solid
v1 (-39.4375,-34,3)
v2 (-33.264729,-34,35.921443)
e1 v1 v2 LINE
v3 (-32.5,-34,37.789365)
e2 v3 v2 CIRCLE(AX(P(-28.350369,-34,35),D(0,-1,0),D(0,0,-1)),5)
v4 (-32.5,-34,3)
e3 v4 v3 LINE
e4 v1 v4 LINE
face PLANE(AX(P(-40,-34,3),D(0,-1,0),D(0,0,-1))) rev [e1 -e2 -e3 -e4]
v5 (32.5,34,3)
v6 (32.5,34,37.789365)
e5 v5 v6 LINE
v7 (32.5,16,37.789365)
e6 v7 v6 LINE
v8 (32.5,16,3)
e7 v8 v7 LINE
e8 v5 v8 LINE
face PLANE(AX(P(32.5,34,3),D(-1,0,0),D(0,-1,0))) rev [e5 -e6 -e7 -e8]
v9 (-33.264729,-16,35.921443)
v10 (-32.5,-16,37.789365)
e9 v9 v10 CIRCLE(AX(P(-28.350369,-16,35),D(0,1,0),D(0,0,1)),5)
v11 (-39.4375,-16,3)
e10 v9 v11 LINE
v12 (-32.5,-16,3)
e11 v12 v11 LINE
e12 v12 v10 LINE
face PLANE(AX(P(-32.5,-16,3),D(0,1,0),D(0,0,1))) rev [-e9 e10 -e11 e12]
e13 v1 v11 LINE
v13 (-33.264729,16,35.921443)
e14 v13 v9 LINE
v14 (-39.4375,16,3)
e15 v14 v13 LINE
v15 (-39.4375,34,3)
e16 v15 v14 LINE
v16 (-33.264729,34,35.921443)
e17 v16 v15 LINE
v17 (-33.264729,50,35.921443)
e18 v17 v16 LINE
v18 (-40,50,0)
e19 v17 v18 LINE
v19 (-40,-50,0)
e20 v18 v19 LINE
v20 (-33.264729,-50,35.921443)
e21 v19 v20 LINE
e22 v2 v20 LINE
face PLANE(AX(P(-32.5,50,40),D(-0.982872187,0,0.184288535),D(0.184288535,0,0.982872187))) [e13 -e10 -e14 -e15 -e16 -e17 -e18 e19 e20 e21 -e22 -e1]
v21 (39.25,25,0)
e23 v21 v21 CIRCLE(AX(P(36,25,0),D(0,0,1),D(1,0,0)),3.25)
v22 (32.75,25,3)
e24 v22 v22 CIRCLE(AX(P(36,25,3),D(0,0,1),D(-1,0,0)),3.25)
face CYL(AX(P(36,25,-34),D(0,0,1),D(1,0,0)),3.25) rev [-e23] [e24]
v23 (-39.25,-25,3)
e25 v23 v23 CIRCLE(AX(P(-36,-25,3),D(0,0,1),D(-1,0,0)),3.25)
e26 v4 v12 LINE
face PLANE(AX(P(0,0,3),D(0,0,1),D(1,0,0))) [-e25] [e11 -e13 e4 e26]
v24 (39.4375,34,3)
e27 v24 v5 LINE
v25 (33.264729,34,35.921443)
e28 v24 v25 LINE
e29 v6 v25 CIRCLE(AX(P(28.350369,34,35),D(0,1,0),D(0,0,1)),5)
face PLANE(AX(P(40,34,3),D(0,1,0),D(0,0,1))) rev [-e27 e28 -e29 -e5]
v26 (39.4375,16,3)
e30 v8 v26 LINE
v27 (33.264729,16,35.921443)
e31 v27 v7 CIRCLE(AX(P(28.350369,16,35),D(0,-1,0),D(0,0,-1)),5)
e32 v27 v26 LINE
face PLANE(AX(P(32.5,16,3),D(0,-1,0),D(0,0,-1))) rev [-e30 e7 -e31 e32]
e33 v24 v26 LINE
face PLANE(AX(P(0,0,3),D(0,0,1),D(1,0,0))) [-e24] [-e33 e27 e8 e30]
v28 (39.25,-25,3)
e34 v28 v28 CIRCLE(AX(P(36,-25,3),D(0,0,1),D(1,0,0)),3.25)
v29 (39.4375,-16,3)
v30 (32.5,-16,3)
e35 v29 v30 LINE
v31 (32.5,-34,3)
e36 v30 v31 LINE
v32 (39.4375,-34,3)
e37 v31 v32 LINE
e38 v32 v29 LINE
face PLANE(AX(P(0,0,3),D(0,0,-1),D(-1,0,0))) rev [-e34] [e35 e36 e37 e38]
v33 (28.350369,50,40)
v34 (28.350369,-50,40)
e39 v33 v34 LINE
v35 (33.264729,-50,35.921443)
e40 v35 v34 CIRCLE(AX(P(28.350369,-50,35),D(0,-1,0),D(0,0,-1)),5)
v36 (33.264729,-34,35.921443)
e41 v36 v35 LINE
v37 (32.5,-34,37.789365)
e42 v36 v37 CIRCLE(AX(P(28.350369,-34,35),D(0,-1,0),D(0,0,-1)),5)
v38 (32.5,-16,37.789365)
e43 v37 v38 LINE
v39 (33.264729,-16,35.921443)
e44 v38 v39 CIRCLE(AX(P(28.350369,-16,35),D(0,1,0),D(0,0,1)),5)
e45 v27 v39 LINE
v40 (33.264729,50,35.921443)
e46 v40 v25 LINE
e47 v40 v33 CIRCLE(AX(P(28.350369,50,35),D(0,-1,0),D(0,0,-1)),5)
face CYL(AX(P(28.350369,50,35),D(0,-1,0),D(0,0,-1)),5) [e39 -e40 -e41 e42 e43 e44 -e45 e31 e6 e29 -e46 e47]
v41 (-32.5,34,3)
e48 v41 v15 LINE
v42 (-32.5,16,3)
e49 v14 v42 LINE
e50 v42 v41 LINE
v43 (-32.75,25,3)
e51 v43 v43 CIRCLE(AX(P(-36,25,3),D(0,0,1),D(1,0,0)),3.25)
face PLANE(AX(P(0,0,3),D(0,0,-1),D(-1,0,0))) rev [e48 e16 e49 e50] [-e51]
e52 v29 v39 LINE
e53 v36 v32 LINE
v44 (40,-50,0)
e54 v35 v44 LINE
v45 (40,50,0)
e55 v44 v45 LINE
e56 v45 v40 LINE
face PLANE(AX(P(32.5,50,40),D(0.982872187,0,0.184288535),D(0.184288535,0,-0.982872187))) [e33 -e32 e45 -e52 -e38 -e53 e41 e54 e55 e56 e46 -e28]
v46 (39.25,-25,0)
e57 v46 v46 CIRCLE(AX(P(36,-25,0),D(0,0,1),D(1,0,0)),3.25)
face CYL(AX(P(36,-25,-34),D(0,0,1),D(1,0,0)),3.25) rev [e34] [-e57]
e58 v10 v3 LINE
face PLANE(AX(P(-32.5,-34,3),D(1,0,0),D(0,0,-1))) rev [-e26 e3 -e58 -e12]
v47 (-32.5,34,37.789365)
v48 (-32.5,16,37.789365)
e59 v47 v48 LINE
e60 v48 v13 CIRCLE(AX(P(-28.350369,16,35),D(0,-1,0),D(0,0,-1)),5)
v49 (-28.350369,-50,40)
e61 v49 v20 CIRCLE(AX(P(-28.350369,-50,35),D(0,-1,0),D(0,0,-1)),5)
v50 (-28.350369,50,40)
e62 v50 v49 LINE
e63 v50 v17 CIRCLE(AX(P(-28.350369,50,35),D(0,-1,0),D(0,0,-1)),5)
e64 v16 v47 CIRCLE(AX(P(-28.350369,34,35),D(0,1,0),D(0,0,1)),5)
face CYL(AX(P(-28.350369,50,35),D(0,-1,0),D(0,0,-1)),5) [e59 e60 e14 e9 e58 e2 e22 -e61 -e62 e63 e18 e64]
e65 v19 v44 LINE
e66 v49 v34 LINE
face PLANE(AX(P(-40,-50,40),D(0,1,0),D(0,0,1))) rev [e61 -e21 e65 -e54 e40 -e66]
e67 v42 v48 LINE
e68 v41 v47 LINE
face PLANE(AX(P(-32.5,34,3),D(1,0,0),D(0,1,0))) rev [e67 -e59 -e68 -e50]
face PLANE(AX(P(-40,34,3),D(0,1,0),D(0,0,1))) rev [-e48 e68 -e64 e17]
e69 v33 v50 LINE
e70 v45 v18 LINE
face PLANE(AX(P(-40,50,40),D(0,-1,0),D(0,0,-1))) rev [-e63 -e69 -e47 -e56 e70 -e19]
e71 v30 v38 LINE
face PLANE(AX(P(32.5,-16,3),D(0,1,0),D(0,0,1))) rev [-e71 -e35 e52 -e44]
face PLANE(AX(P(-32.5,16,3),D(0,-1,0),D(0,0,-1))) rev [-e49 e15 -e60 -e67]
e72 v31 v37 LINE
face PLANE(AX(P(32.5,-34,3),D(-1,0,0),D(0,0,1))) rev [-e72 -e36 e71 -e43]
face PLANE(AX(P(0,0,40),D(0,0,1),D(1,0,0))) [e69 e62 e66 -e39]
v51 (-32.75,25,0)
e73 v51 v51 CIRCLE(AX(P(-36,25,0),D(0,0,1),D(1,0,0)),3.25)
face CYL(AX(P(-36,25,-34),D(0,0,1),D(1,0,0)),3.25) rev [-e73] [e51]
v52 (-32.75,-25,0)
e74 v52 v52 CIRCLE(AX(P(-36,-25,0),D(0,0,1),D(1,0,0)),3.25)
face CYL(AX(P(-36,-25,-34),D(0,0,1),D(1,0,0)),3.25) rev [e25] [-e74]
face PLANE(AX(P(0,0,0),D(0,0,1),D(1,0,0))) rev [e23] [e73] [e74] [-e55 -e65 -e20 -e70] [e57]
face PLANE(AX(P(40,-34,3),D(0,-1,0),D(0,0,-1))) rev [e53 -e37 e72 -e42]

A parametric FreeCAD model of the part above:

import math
import FreeCAD as App
import Part
import Sketcher

doc = App.newDocument("Part")
params = doc.addObject("Spreadsheet::Sheet", "Params")
for row, (alias, value) in enumerate([
    ("sketch1_width", "80 mm"),
    ("sketch1_height", "100 mm"),
    ("pad1_length", "40 mm"),
    ("sketch2_width", "65 mm"),
    ("sketch2_width2", "80 mm"),
    ("sketch3_height", "18 mm"),
    ("sketch3_width", "7.5 mm"),
    ("pocket2_length", "37 mm"),
    ("sketch4_diameter", "6.5 mm"),
    ("pocket3_length", "37 mm"),
    ("sketch5_radius", "5 mm"),
    ("sketch5_width", "80 mm"),
    ("pocket4_length", "100 mm"),
], start=1):
    params.set(f"A{row}", alias)
    params.set(f"B{row}", "=" + value)
    params.setAlias(f"B{row}", alias)

body = doc.addObject("PartDesign::Body", "Body")

# Sketch on XY plane
sketch1 = body.newObject("Sketcher::SketchObject", "Sketch")
sketch1.AttachmentSupport = (doc.getObject("XY_Plane"), [""])
sketch1.MapMode = "FlatFace"
sketch1.addGeometry(Part.LineSegment(App.Vector(-40, 50, 0), App.Vector(-40, -50, 0)), False)
sketch1.addGeometry(Part.LineSegment(App.Vector(-40, -50, 0), App.Vector(40, -50, 0)), False)
sketch1.addGeometry(Part.LineSegment(App.Vector(40, -50, 0), App.Vector(40, 50, 0)), False)
sketch1.addGeometry(Part.LineSegment(App.Vector(40, 50, 0), App.Vector(-40, 50, 0)), False)
sketch1.addConstraint(Sketcher.Constraint("Coincident", 0, 2, 1, 1))
sketch1.addConstraint(Sketcher.Constraint("Coincident", 1, 2, 2, 1))
sketch1.addConstraint(Sketcher.Constraint("Coincident", 2, 2, 3, 1))
sketch1.addConstraint(Sketcher.Constraint("Coincident", 3, 2, 0, 1))
sketch1.addConstraint(Sketcher.Constraint("Vertical", 0))
sketch1.addConstraint(Sketcher.Constraint("Horizontal", 1))
sketch1.addConstraint(Sketcher.Constraint("Vertical", 2))
sketch1.addConstraint(Sketcher.Constraint("Horizontal", 3))
sketch1.addConstraint(Sketcher.Constraint("Symmetric", 0, 2, 2, 2, -1, 1))
sketch1.addConstraint(Sketcher.Constraint("DistanceX", 1, 1, 1, 2, 80.0))
sketch1.addConstraint(Sketcher.Constraint("DistanceY", 0, 2, 0, 1, 100.0))
sketch1.setExpression("Constraints[9]", "Params.sketch1_width")
sketch1.setExpression("Constraints[10]", "Params.sketch1_height")
pad1 = body.newObject("PartDesign::Pad", "Pad")
pad1.Profile = sketch1
pad1.setExpression("Length", "Params.pad1_length")

# Sketch on XZ plane
sketch2 = body.newObject("Sketcher::SketchObject", "Sketch001")
sketch2.AttachmentSupport = (doc.getObject("XZ_Plane"), [""])
sketch2.MapMode = "FlatFace"
sketch2.AttachmentOffset = App.Placement(App.Vector(0, 0, 50), App.Rotation())
sketch2.addGeometry(Part.LineSegment(App.Vector(54, -14, 0), App.Vector(54, 54, 0)), False)
sketch2.addGeometry(Part.LineSegment(App.Vector(54, 54, 0), App.Vector(-54, 54, 0)), False)
sketch2.addGeometry(Part.LineSegment(App.Vector(-54, 54, 0), App.Vector(-54, -14, 0)), False)
sketch2.addGeometry(Part.LineSegment(App.Vector(-54, -14, 0), App.Vector(54, -14, 0)), False)
sketch2.addGeometry(Part.LineSegment(App.Vector(-32, 40, 0), App.Vector(32, 40, 0)), False)
sketch2.addGeometry(Part.LineSegment(App.Vector(32, 40, 0), App.Vector(40, 0, 0)), False)
sketch2.addGeometry(Part.LineSegment(App.Vector(40, 0, 0), App.Vector(-40, 0, 0)), False)
sketch2.addGeometry(Part.LineSegment(App.Vector(-40, 0, 0), App.Vector(-32, 40, 0)), False)
sketch2.addConstraint(Sketcher.Constraint("Coincident", 0, 2, 1, 1))
sketch2.addConstraint(Sketcher.Constraint("Coincident", 1, 2, 2, 1))
sketch2.addConstraint(Sketcher.Constraint("Coincident", 2, 2, 3, 1))
sketch2.addConstraint(Sketcher.Constraint("Coincident", 3, 2, 0, 1))
sketch2.addConstraint(Sketcher.Constraint("Coincident", 4, 2, 5, 1))
sketch2.addConstraint(Sketcher.Constraint("Coincident", 5, 2, 6, 1))
sketch2.addConstraint(Sketcher.Constraint("Coincident", 6, 2, 7, 1))
sketch2.addConstraint(Sketcher.Constraint("Coincident", 7, 2, 4, 1))
sketch2.addConstraint(Sketcher.Constraint("Vertical", 0))
sketch2.addConstraint(Sketcher.Constraint("Horizontal", 1))
sketch2.addConstraint(Sketcher.Constraint("Vertical", 2))
sketch2.addConstraint(Sketcher.Constraint("Horizontal", 3))
sketch2.addConstraint(Sketcher.Constraint("Horizontal", 4))
sketch2.addConstraint(Sketcher.Constraint("Horizontal", 6))
sketch2.addConstraint(Sketcher.Constraint("Symmetric", 5, 2, 6, 2, -1, 1))
sketch2.addConstraint(Sketcher.Constraint("Equal", 5, 7))
sketch2.addConstraint(Sketcher.Constraint("DistanceX", 4, 1, 4, 2, 65.0))
sketch2.addConstraint(Sketcher.Constraint("DistanceX", 6, 2, 6, 1, 80.0))
sketch2.addConstraint(Sketcher.Constraint("DistanceY", -1, 1, 4, 2, 40.0))
sketch2.addConstraint(Sketcher.Constraint("DistanceX", 1, 2, 1, 1, 108.832))
sketch2.addConstraint(Sketcher.Constraint("DistanceY", 0, 1, 0, 2, 68.832))
sketch2.addConstraint(Sketcher.Constraint("DistanceX", -1, 1, 0, 2, 54.416))
sketch2.addConstraint(Sketcher.Constraint("DistanceY", -1, 1, 0, 2, 54.416))
sketch2.setExpression("Constraints[16]", "Params.sketch2_width")
sketch2.setExpression("Constraints[17]", "Params.sketch2_width2")
pocket1 = body.newObject("PartDesign::Pocket", "Pocket")
pocket1.Profile = sketch2
pocket1.Type = "ThroughAll"
pocket1.Midplane = True

# Sketch on XY plane
sketch3 = body.newObject("Sketcher::SketchObject", "Sketch002")
sketch3.AttachmentSupport = (doc.getObject("XY_Plane"), [""])
sketch3.MapMode = "FlatFace"
sketch3.AttachmentOffset = App.Placement(App.Vector(0, 0, 40), App.Rotation())
sketch3.addGeometry(Part.LineSegment(App.Vector(-40, -34, 0), App.Vector(-32, -34, 0)), False)
sketch3.addGeometry(Part.LineSegment(App.Vector(-32, -34, 0), App.Vector(-32, -16, 0)), False)
sketch3.addGeometry(Part.LineSegment(App.Vector(-32, -16, 0), App.Vector(-40, -16, 0)), False)
sketch3.addGeometry(Part.LineSegment(App.Vector(-40, -16, 0), App.Vector(-40, -34, 0)), False)
sketch3.addGeometry(Part.LineSegment(App.Vector(-40, 34, 0), App.Vector(-40, 16, 0)), False)
sketch3.addGeometry(Part.LineSegment(App.Vector(-40, 16, 0), App.Vector(-32, 16, 0)), False)
sketch3.addGeometry(Part.LineSegment(App.Vector(-32, 16, 0), App.Vector(-32, 34, 0)), False)
sketch3.addGeometry(Part.LineSegment(App.Vector(-32, 34, 0), App.Vector(-40, 34, 0)), False)
sketch3.addGeometry(Part.LineSegment(App.Vector(40, -34, 0), App.Vector(40, -16, 0)), False)
sketch3.addGeometry(Part.LineSegment(App.Vector(40, -16, 0), App.Vector(32, -16, 0)), False)
sketch3.addGeometry(Part.LineSegment(App.Vector(32, -16, 0), App.Vector(32, -34, 0)), False)
sketch3.addGeometry(Part.LineSegment(App.Vector(32, -34, 0), App.Vector(40, -34, 0)), False)
sketch3.addGeometry(Part.LineSegment(App.Vector(40, 34, 0), App.Vector(32, 34, 0)), False)
sketch3.addGeometry(Part.LineSegment(App.Vector(32, 34, 0), App.Vector(32, 16, 0)), False)
sketch3.addGeometry(Part.LineSegment(App.Vector(32, 16, 0), App.Vector(40, 16, 0)), False)
sketch3.addGeometry(Part.LineSegment(App.Vector(40, 16, 0), App.Vector(40, 34, 0)), False)
sketch3.addConstraint(Sketcher.Constraint("Coincident", 0, 2, 1, 1))
sketch3.addConstraint(Sketcher.Constraint("Coincident", 1, 2, 2, 1))
sketch3.addConstraint(Sketcher.Constraint("Coincident", 2, 2, 3, 1))
sketch3.addConstraint(Sketcher.Constraint("Coincident", 3, 2, 0, 1))
sketch3.addConstraint(Sketcher.Constraint("Coincident", 4, 2, 5, 1))
sketch3.addConstraint(Sketcher.Constraint("Coincident", 5, 2, 6, 1))
sketch3.addConstraint(Sketcher.Constraint("Coincident", 6, 2, 7, 1))
sketch3.addConstraint(Sketcher.Constraint("Coincident", 7, 2, 4, 1))
sketch3.addConstraint(Sketcher.Constraint("Coincident", 8, 2, 9, 1))
sketch3.addConstraint(Sketcher.Constraint("Coincident", 9, 2, 10, 1))
sketch3.addConstraint(Sketcher.Constraint("Coincident", 10, 2, 11, 1))
sketch3.addConstraint(Sketcher.Constraint("Coincident", 11, 2, 8, 1))
sketch3.addConstraint(Sketcher.Constraint("Coincident", 12, 2, 13, 1))
sketch3.addConstraint(Sketcher.Constraint("Coincident", 13, 2, 14, 1))
sketch3.addConstraint(Sketcher.Constraint("Coincident", 14, 2, 15, 1))
sketch3.addConstraint(Sketcher.Constraint("Coincident", 15, 2, 12, 1))
sketch3.addConstraint(Sketcher.Constraint("Horizontal", 0))
sketch3.addConstraint(Sketcher.Constraint("Vertical", 1))
sketch3.addConstraint(Sketcher.Constraint("Horizontal", 2))
sketch3.addConstraint(Sketcher.Constraint("Vertical", 3))
sketch3.addConstraint(Sketcher.Constraint("Vertical", 4))
sketch3.addConstraint(Sketcher.Constraint("Horizontal", 5))
sketch3.addConstraint(Sketcher.Constraint("Vertical", 6))
sketch3.addConstraint(Sketcher.Constraint("Horizontal", 7))
sketch3.addConstraint(Sketcher.Constraint("Vertical", 8))
sketch3.addConstraint(Sketcher.Constraint("Horizontal", 9))
sketch3.addConstraint(Sketcher.Constraint("Vertical", 10))
sketch3.addConstraint(Sketcher.Constraint("Horizontal", 11))
sketch3.addConstraint(Sketcher.Constraint("Horizontal", 12))
sketch3.addConstraint(Sketcher.Constraint("Vertical", 13))
sketch3.addConstraint(Sketcher.Constraint("Horizontal", 14))
sketch3.addConstraint(Sketcher.Constraint("Vertical", 15))
sketch3.addConstraint(Sketcher.Constraint("Symmetric", 4, 2, 8, 2, -1, 1))
sketch3.addConstraint(Sketcher.Constraint("Symmetric", 6, 2, 10, 2, -1, 1))
sketch3.addConstraint(Sketcher.Constraint("Symmetric", 0, 2, 12, 2, -1, 1))
sketch3.addConstraint(Sketcher.Constraint("Symmetric", 2, 2, 14, 2, -1, 1))
sketch3.addConstraint(Sketcher.Constraint("Symmetric", 2, 2, 8, 2, -2))
sketch3.addConstraint(Sketcher.Constraint("Symmetric", 0, 2, 10, 2, -2))
sketch3.addConstraint(Sketcher.Constraint("DistanceY", 1, 1, 1, 2, 18.0))
sketch3.addConstraint(Sketcher.Constraint("DistanceX", 0, 1, 0, 2, 7.5))
sketch3.addConstraint(Sketcher.Constraint("DistanceY", 0, 2, -1, 1, 34.0))
sketch3.addConstraint(Sketcher.Constraint("DistanceX", 2, 2, -1, 1, 40.0))
sketch3.setExpression("Constraints[38]", "Params.sketch3_height")
sketch3.setExpression("Constraints[39]", "Params.sketch3_width")
pocket2 = body.newObject("PartDesign::Pocket", "Pocket001")
pocket2.Profile = sketch3
pocket2.setExpression("Length", "Params.pocket2_length")

# Sketch on XY plane
sketch4 = body.newObject("Sketcher::SketchObject", "Sketch003")
sketch4.AttachmentSupport = (doc.getObject("XY_Plane"), [""])
sketch4.MapMode = "FlatFace"
sketch4.AttachmentOffset = App.Placement(App.Vector(0, 0, 3), App.Rotation())
sketch4.addGeometry(Part.Circle(App.Vector(-36, 25, 0), App.Vector(0, 0, 1), 3.2), False)
sketch4.addGeometry(Part.Circle(App.Vector(36, 25, 0), App.Vector(0, 0, 1), 3.2), False)
sketch4.addGeometry(Part.Circle(App.Vector(36, -25, 0), App.Vector(0, 0, 1), 3.2), False)
sketch4.addGeometry(Part.Circle(App.Vector(-36, -25, 0), App.Vector(0, 0, 1), 3.2), False)
sketch4.addConstraint(Sketcher.Constraint("Equal", 0, 1))
sketch4.addConstraint(Sketcher.Constraint("Equal", 1, 2))
sketch4.addConstraint(Sketcher.Constraint("Equal", 2, 3))
sketch4.addConstraint(Sketcher.Constraint("Symmetric", 0, 3, 2, 3, -1, 1))
sketch4.addConstraint(Sketcher.Constraint("Symmetric", 1, 3, 3, 3, -1, 1))
sketch4.addConstraint(Sketcher.Constraint("Symmetric", 0, 3, 1, 3, -2))
sketch4.addConstraint(Sketcher.Constraint("Diameter", 0, 6.5))
sketch4.addConstraint(Sketcher.Constraint("DistanceX", 0, 3, -1, 1, 36.0))
sketch4.addConstraint(Sketcher.Constraint("DistanceY", -1, 1, 0, 3, 25.0))
sketch4.setExpression("Constraints[6]", "Params.sketch4_diameter")
pocket3 = body.newObject("PartDesign::Pocket", "Pocket002")
pocket3.Profile = sketch4
pocket3.setExpression("Length", "Params.pocket3_length")

# Sketch on XZ plane
sketch5 = body.newObject("Sketcher::SketchObject", "Sketch004")
sketch5.AttachmentSupport = (doc.getObject("XZ_Plane"), [""])
sketch5.MapMode = "FlatFace"
sketch5.AttachmentOffset = App.Placement(App.Vector(0, 0, 50), App.Rotation())
sketch5.addGeometry(Part.LineSegment(App.Vector(-54.4, 54.4, 0), App.Vector(-54.4, -14.4, 0)), False)
sketch5.addGeometry(Part.LineSegment(App.Vector(-54.4, -14.4, 0), App.Vector(54.4, -14.4, 0)), False)
sketch5.addGeometry(Part.LineSegment(App.Vector(54.4, -14.4, 0), App.Vector(54.4, 54.4, 0)), False)
sketch5.addGeometry(Part.LineSegment(App.Vector(54.4, 54.4, 0), App.Vector(-54.4, 54.4, 0)), False)
sketch5.addGeometry(Part.ArcOfCircle(Part.Circle(App.Vector(-28.4, 35, 0), App.Vector(0, 0, 1), 5), math.radians(90), math.radians(169)), False)
sketch5.addGeometry(Part.LineSegment(App.Vector(-28.4, 40, 0), App.Vector(28.4, 40, 0)), False)
sketch5.addGeometry(Part.ArcOfCircle(Part.Circle(App.Vector(28.4, 35, 0), App.Vector(0, 0, 1), 5), math.radians(11), math.radians(90)), False)
sketch5.addGeometry(Part.LineSegment(App.Vector(33.3, 35.9, 0), App.Vector(40, 0, 0)), False)
sketch5.addGeometry(Part.LineSegment(App.Vector(40, 0, 0), App.Vector(-40, 0, 0)), False)
sketch5.addGeometry(Part.LineSegment(App.Vector(-40, 0, 0), App.Vector(-33.3, 35.9, 0)), False)
sketch5.addConstraint(Sketcher.Constraint("Coincident", 0, 2, 1, 1))
sketch5.addConstraint(Sketcher.Constraint("Coincident", 1, 2, 2, 1))
sketch5.addConstraint(Sketcher.Constraint("Coincident", 2, 2, 3, 1))
sketch5.addConstraint(Sketcher.Constraint("Coincident", 3, 2, 0, 1))
sketch5.addConstraint(Sketcher.Constraint("Tangent", 4, 1, 5, 1))
sketch5.addConstraint(Sketcher.Constraint("Tangent", 5, 2, 6, 2))
sketch5.addConstraint(Sketcher.Constraint("Tangent", 6, 1, 7, 1))
sketch5.addConstraint(Sketcher.Constraint("Coincident", 7, 2, 8, 1))
sketch5.addConstraint(Sketcher.Constraint("Coincident", 8, 2, 9, 1))
sketch5.addConstraint(Sketcher.Constraint("Tangent", 9, 2, 4, 2))
sketch5.addConstraint(Sketcher.Constraint("Vertical", 0))
sketch5.addConstraint(Sketcher.Constraint("Horizontal", 1))
sketch5.addConstraint(Sketcher.Constraint("Vertical", 2))
sketch5.addConstraint(Sketcher.Constraint("Horizontal", 3))
sketch5.addConstraint(Sketcher.Constraint("Horizontal", 5))
sketch5.addConstraint(Sketcher.Constraint("Horizontal", 8))
sketch5.addConstraint(Sketcher.Constraint("Equal", 4, 6))
sketch5.addConstraint(Sketcher.Constraint("Symmetric", 7, 2, 8, 2, -1, 1))
sketch5.addConstraint(Sketcher.Constraint("Horizontal", 6, 1, 9, 2))
sketch5.addConstraint(Sketcher.Constraint("Radius", 4, 5.0))
sketch5.addConstraint(Sketcher.Constraint("DistanceX", 8, 2, 8, 1, 80.0))
sketch5.addConstraint(Sketcher.Constraint("DistanceY", -1, 1, 4, 3, 35.0))
sketch5.addConstraint(Sketcher.Constraint("DistanceX", 1, 1, 1, 2, 108.832))
sketch5.addConstraint(Sketcher.Constraint("DistanceY", 0, 2, 0, 1, 68.832))
sketch5.addConstraint(Sketcher.Constraint("DistanceX", 0, 2, -1, 1, 54.416))
sketch5.addConstraint(Sketcher.Constraint("DistanceY", 0, 2, -1, 1, 14.416))
sketch5.addConstraint(Sketcher.Constraint("DistanceX", 4, 3, 6, 1, 61.615098))
sketch5.setExpression("Constraints[19]", "Params.sketch5_radius")
sketch5.setExpression("Constraints[20]", "Params.sketch5_width")
pocket4 = body.newObject("PartDesign::Pocket", "Pocket003")
pocket4.Profile = sketch5
pocket4.setExpression("Length", "Params.pocket4_length")

doc.recompute()
